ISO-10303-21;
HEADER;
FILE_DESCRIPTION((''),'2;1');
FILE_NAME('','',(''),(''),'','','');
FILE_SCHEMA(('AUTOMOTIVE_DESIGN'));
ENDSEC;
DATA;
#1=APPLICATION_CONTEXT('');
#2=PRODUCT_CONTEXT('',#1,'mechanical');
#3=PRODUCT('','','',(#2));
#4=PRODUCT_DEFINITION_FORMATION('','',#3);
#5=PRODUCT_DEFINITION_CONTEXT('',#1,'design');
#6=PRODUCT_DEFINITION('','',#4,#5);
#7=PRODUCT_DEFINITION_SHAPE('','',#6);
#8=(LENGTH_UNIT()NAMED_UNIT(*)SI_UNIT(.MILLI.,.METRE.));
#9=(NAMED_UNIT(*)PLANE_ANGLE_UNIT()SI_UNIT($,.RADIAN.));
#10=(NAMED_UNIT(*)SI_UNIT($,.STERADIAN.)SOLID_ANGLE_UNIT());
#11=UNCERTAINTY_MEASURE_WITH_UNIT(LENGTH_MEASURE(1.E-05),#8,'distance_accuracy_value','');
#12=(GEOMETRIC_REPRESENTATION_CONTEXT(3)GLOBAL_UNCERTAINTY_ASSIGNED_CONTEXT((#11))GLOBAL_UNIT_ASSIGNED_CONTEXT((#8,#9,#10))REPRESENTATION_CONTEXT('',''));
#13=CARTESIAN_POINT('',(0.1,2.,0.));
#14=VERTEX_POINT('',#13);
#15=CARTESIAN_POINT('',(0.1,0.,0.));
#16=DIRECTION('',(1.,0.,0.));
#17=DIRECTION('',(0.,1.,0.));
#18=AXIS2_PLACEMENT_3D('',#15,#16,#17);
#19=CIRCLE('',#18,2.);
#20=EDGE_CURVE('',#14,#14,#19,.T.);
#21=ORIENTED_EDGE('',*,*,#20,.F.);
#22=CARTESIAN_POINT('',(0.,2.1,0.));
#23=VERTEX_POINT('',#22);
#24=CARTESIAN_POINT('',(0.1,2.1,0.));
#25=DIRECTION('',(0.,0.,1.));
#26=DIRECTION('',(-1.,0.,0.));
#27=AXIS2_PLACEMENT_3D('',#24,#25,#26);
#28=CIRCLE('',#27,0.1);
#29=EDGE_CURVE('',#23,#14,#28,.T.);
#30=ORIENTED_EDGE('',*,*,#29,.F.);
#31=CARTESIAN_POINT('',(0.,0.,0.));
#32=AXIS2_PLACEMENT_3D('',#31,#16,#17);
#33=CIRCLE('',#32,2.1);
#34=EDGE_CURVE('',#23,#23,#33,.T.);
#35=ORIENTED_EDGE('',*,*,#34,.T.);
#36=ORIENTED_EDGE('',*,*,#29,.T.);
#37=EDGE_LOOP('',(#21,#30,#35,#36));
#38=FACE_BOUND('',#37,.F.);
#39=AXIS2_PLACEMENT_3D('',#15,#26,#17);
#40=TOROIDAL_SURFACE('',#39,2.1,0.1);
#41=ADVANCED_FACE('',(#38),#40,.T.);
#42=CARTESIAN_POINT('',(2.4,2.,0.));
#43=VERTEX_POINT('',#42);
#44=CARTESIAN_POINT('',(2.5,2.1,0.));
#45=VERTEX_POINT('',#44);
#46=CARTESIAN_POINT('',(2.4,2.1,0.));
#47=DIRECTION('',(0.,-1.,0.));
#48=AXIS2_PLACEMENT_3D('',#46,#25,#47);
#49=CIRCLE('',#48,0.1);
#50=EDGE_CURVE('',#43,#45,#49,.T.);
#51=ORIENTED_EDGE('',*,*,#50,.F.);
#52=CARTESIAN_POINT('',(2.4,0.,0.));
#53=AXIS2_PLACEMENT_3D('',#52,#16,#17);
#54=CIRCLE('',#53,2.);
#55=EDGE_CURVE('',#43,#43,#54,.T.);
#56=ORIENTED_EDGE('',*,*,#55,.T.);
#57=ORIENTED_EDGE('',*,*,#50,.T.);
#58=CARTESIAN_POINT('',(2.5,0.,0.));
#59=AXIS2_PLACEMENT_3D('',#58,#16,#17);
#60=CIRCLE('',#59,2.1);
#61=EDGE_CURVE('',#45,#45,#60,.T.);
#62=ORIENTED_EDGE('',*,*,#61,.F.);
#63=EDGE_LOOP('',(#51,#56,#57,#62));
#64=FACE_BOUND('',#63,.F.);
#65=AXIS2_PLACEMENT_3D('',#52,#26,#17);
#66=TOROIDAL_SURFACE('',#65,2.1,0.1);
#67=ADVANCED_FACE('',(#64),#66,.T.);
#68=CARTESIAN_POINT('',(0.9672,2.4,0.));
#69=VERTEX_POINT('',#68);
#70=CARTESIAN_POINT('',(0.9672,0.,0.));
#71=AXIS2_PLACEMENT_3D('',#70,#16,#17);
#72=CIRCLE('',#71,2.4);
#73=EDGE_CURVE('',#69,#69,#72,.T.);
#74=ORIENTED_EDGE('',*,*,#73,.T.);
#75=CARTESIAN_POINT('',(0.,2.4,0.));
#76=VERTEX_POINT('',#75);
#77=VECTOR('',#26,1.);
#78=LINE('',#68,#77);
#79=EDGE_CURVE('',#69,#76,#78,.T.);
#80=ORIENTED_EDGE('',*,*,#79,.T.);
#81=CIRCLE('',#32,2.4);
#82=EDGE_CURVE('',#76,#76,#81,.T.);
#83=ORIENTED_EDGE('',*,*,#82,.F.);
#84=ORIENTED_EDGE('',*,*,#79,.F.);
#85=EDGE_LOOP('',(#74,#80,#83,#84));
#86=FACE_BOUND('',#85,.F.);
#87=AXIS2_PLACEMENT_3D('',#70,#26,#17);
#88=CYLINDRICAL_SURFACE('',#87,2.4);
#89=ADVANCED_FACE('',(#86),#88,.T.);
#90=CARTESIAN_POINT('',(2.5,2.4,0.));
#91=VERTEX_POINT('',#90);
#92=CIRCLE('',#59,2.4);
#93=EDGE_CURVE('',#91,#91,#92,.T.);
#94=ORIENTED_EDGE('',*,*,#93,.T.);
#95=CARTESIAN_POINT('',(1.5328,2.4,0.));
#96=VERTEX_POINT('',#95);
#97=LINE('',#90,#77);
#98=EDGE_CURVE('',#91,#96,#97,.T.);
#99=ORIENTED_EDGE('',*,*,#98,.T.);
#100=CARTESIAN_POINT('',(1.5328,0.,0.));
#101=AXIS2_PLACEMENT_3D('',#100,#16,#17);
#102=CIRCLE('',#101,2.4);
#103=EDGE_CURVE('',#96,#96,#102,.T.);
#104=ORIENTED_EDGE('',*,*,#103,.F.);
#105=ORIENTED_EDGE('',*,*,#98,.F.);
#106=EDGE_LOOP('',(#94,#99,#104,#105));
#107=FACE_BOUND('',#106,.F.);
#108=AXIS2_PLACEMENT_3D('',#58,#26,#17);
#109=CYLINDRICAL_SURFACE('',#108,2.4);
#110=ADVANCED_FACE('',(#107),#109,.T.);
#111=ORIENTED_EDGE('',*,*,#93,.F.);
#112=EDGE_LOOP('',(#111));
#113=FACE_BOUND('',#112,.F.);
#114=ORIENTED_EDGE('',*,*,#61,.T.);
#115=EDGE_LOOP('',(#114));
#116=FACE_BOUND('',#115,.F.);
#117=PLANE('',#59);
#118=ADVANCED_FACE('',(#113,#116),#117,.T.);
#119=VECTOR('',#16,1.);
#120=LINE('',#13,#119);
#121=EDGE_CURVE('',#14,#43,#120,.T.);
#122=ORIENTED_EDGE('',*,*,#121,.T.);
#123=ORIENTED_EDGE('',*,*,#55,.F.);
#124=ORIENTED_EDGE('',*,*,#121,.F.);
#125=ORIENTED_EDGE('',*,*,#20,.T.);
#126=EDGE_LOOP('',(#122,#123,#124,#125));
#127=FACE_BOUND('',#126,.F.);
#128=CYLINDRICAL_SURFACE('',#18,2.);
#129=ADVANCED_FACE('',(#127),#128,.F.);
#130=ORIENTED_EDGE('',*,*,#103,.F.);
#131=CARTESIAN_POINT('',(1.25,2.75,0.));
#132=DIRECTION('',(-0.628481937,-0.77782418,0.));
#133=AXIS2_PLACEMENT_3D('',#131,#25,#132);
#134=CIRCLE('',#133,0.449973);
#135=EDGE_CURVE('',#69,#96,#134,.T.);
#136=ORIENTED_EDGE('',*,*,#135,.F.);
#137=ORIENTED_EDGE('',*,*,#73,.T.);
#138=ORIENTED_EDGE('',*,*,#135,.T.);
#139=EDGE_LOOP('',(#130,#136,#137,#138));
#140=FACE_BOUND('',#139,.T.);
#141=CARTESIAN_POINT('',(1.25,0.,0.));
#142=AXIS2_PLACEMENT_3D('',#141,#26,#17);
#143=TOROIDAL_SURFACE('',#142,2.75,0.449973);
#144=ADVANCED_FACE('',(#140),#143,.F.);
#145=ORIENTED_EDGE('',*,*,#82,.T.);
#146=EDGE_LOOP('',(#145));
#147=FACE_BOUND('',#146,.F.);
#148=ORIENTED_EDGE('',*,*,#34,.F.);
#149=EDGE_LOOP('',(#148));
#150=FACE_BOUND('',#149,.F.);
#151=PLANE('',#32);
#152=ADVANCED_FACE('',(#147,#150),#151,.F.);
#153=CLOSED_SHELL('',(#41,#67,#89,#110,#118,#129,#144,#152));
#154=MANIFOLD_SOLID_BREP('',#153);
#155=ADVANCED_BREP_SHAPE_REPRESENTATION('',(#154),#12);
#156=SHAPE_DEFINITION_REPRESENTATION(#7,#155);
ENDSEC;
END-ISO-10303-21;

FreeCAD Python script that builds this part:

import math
import FreeCAD as App
import Part
import Sketcher
from FreeCAD import Vector
Q = App.Units.Quantity

doc = App.newDocument("Part")
body = doc.addObject("PartDesign::Body", "Body")

sketch1 = body.newObject("Sketcher::SketchObject", "Sketch")
sketch1.AttachmentSupport = (doc.getObject("XY_Plane"), [""])
sketch1.MapMode = "FlatFace"
sketch1.addGeometry(Part.LineSegment(Vector(0, 2.4, 0), Vector(0, 2.1, 0)), False)
sketch1.addGeometry(Part.ArcOfCircle(Part.Circle(Vector(0.1, 2.1, 0), Vector(0, 0, 1), 0.1), math.radians(180), math.radians(270)), False)
sketch1.addGeometry(Part.LineSegment(Vector(0.1, 2, 0), Vector(2.4, 2, 0)), False)
sketch1.addGeometry(Part.ArcOfCircle(Part.Circle(Vector(2.4, 2.1, 0), Vector(0, 0, 1), 0.1), math.radians(-90), math.radians(0)), False)
sketch1.addGeometry(Part.LineSegment(Vector(2.5, 2.1, 0), Vector(2.5, 2.4, 0)), False)
sketch1.addGeometry(Part.LineSegment(Vector(2.5, 2.4, 0), Vector(1.53, 2.4, 0)), False)
sketch1.addGeometry(Part.ArcOfCircle(Part.Circle(Vector(1.25, 2.75, 0), Vector(0, 0, 1), 0.45), math.radians(-129), math.radians(-51)), False)
sketch1.addGeometry(Part.LineSegment(Vector(0.97, 2.4, 0), Vector(0, 2.4, 0)), False)
sketch1.addConstraint(Sketcher.Constraint("Tangent", 0, 2, 1, 1))
sketch1.addConstraint(Sketcher.Constraint("Tangent", 1, 2, 2, 1))
sketch1.addConstraint(Sketcher.Constraint("Tangent", 2, 2, 3, 1))
sketch1.addConstraint(Sketcher.Constraint("Tangent", 3, 2, 4, 1))
sketch1.addConstraint(Sketcher.Constraint("Coincident", 4, 2, 5, 1))
sketch1.addConstraint(Sketcher.Constraint("Coincident", 5, 2, 6, 2))
sketch1.addConstraint(Sketcher.Constraint("Coincident", 6, 1, 7, 1))
sketch1.addConstraint(Sketcher.Constraint("Coincident", 7, 2, 0, 1))
sketch1.addConstraint(Sketcher.Constraint("Vertical", 0))
sketch1.addConstraint(Sketcher.Constraint("Horizontal", 2))
sketch1.addConstraint(Sketcher.Constraint("Vertical", 4))
sketch1.addConstraint(Sketcher.Constraint("Horizontal", 5))
sketch1.addConstraint(Sketcher.Constraint("Horizontal", 7))
sketch1.addConstraint(Sketcher.Constraint("Equal", 1, 3))
sketch1.addConstraint(Sketcher.Constraint("PointOnObject", 0, 2, -2))
sketch1.addConstraint(Sketcher.Constraint("Horizontal", 5, 2, 6, 1))
sketch1.addConstraint(Sketcher.Constraint("Equal", 5, 7))
sketch1.addConstraint(Sketcher.Constraint("Radius", 1, Q("0.1 mm")))
sketch1.addConstraint(Sketcher.Constraint("Radius", 6, Q("0.45 mm")))
sketch1.addConstraint(Sketcher.Constraint("DistanceX", 2, 1, 2, 2, Q("2.3 mm")))
sketch1.addConstraint(Sketcher.Constraint("DistanceY", 0, 2, 0, 1, Q("0.3 mm")))
sketch1.addConstraint(Sketcher.Constraint("DistanceY", -1, 1, 1, 2, Q("2 mm")))
sketch1.addConstraint(Sketcher.Constraint("DistanceY", -1, 1, 6, 3, Q("2.75 mm")))
revolution = body.newObject("PartDesign::Revolution", "Revolution")
revolution.Profile = sketch1
revolution.ReferenceAxis = (sketch1, ["H_Axis"])
revolution.Angle = 360

doc.recompute()
